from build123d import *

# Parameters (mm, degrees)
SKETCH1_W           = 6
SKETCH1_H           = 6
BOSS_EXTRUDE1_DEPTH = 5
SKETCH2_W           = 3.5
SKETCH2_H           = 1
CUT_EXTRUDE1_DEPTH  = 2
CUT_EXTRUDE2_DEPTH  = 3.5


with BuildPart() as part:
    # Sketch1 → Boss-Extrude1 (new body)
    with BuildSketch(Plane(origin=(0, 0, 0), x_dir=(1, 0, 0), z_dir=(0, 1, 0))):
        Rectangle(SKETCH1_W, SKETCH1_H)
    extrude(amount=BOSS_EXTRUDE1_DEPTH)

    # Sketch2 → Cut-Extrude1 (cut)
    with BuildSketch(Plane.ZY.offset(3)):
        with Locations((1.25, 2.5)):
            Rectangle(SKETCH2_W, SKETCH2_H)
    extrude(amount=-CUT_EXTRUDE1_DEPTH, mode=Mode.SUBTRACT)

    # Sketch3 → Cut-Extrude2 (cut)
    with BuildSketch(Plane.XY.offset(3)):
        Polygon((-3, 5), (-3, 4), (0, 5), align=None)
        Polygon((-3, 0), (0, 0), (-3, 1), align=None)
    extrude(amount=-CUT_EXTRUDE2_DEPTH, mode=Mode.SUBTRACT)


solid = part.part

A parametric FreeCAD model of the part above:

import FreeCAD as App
import Part
import Sketcher
Q = App.Units.Quantity

doc = App.newDocument("Part")
body = doc.addObject("PartDesign::Body", "Body")

# Sketch on XZ plane
sketch1 = doc.addObject("Sketcher::SketchObject", "Sketch")
body.addObject(sketch1)
sketch1.AttachmentSupport = (doc.XZ_Plane, [""])
sketch1.MapMode = "FlatFace"
sketch1.addGeometry([
    Part.LineSegment(App.Vector(-3, -3, 0), App.Vector(-3, 3, 0)),
    Part.LineSegment(App.Vector(-3, 3, 0), App.Vector(3, 3, 0)),
    Part.LineSegment(App.Vector(3, 3, 0), App.Vector(3, -3, 0)),
    Part.LineSegment(App.Vector(3, -3, 0), App.Vector(-3, -3, 0)),
], False)
sketch1.addConstraint([
    Sketcher.Constraint("Coincident", 0, 2, 1, 1),
    Sketcher.Constraint("Coincident", 1, 2, 2, 1),
    Sketcher.Constraint("Coincident", 2, 2, 3, 1),
    Sketcher.Constraint("Coincident", 3, 2, 0, 1),
    Sketcher.Constraint("Vertical", 0),
    Sketcher.Constraint("Horizontal", 1),
    Sketcher.Constraint("Vertical", 2),
    Sketcher.Constraint("Horizontal", 3),
    Sketcher.Constraint("Symmetric", 0, 2, 2, 2, -1, 1),
    Sketcher.Constraint("Equal", 3, 0),
    Sketcher.Constraint("DistanceX", 1, 1, 1, 2, Q("6 mm")),
])
pad1 = doc.addObject("PartDesign::Pad", "Pad")
body.addObject(pad1)
pad1.Profile = sketch1
pad1.Length = 5
pad1.Reversed = True

# Sketch on YZ plane
sketch2 = doc.addObject("Sketcher::SketchObject", "Sketch001")
body.addObject(sketch2)
sketch2.AttachmentSupport = (doc.YZ_Plane, [""])
sketch2.MapMode = "FlatFace"
sketch2.AttachmentOffset = App.Placement(App.Vector(0, 0, -3), App.Rotation())
sketch2.addGeometry([
    Part.LineSegment(App.Vector(3, -0.5, 0), App.Vector(2, -0.5, 0)),
    Part.LineSegment(App.Vector(2, -0.5, 0), App.Vector(2, 3, 0)),
    Part.LineSegment(App.Vector(2, 3, 0), App.Vector(3, 3, 0)),
    Part.LineSegment(App.Vector(3, 3, 0), App.Vector(3, -0.5, 0)),
], False)
sketch2.addConstraint([
    Sketcher.Constraint("Coincident", 0, 2, 1, 1),
    Sketcher.Constraint("Coincident", 1, 2, 2, 1),
    Sketcher.Constraint("Coincident", 2, 2, 3, 1),
    Sketcher.Constraint("Coincident", 3, 2, 0, 1),
    Sketcher.Constraint("Horizontal", 0),
    Sketcher.Constraint("Vertical", 1),
    Sketcher.Constraint("Horizontal", 2),
    Sketcher.Constraint("Vertical", 3),
    Sketcher.Constraint("DistanceX", 0, 2, 0, 1, Q("1 mm")),
    Sketcher.Constraint("DistanceY", 1, 1, 1, 2, Q("3.5 mm")),
    Sketcher.Constraint("DistanceX", -1, 1, 0, 2, Q("2 mm")),
    Sketcher.Constraint("DistanceY", -1, 1, 1, 2, Q("3 mm")),
])
pocket1 = doc.addObject("PartDesign::Pocket", "Pocket")
body.addObject(pocket1)
pocket1.Profile = sketch2
pocket1.Length = 2
pocket1.Reversed = True

# Sketch on XY plane
sketch3 = doc.addObject("Sketcher::SketchObject", "Sketch002")
body.addObject(sketch3)
sketch3.AttachmentSupport = (doc.XY_Plane, [""])
sketch3.MapMode = "FlatFace"
sketch3.AttachmentOffset = App.Placement(App.Vector(0, 0, 3), App.Rotation())
sketch3.addGeometry([
    Part.LineSegment(App.Vector(-3, 5, 0), App.Vector(-3, 4, 0)),  # 0
    Part.LineSegment(App.Vector(-3, 4, 0), App.Vector(0, 5, 0)),  # 1
    Part.LineSegment(App.Vector(0, 5, 0), App.Vector(-3, 5, 0)),  # 2
    Part.LineSegment(App.Vector(-3, 0, 0), App.Vector(0, 0, 0)),  # 3
    Part.LineSegment(App.Vector(0, 0, 0), App.Vector(-3, 1, 0)),  # 4
    Part.LineSegment(App.Vector(-3, 1, 0), App.Vector(-3, 0, 0)),  # 5
], False)
sketch3.addConstraint([
    Sketcher.Constraint("Coincident", 0, 2, 1, 1),
    Sketcher.Constraint("Coincident", 1, 2, 2, 1),
    Sketcher.Constraint("Coincident", 2, 2, 0, 1),
    Sketcher.Constraint("Coincident", 3, 2, 4, 1),
    Sketcher.Constraint("Coincident", 4, 2, 5, 1),
    Sketcher.Constraint("Coincident", 5, 2, 3, 1),
    Sketcher.Constraint("Vertical", 0),
    Sketcher.Constraint("Horizontal", 2),
    Sketcher.Constraint("Horizontal", 3),
    Sketcher.Constraint("Vertical", 5),
    Sketcher.Constraint("Coincident", 3, 2, -1, 1),
    Sketcher.Constraint("PointOnObject", 1, 2, -2),
    Sketcher.Constraint("Vertical", 2, 2, 4, 2),
    Sketcher.Constraint("Equal", 0, 5),
    Sketcher.Constraint("DistanceX", 2, 2, 2, 1, Q("3 mm")),
    Sketcher.Constraint("DistanceY", 0, 2, 0, 1, Q("1 mm")),
    Sketcher.Constraint("DistanceY", -1, 1, 0, 2, Q("4 mm")),
])
pocket2 = doc.addObject("PartDesign::Pocket", "Pocket001")
body.addObject(pocket2)
pocket2.Profile = sketch3
pocket2.Length = 3.5

doc.recompute()
